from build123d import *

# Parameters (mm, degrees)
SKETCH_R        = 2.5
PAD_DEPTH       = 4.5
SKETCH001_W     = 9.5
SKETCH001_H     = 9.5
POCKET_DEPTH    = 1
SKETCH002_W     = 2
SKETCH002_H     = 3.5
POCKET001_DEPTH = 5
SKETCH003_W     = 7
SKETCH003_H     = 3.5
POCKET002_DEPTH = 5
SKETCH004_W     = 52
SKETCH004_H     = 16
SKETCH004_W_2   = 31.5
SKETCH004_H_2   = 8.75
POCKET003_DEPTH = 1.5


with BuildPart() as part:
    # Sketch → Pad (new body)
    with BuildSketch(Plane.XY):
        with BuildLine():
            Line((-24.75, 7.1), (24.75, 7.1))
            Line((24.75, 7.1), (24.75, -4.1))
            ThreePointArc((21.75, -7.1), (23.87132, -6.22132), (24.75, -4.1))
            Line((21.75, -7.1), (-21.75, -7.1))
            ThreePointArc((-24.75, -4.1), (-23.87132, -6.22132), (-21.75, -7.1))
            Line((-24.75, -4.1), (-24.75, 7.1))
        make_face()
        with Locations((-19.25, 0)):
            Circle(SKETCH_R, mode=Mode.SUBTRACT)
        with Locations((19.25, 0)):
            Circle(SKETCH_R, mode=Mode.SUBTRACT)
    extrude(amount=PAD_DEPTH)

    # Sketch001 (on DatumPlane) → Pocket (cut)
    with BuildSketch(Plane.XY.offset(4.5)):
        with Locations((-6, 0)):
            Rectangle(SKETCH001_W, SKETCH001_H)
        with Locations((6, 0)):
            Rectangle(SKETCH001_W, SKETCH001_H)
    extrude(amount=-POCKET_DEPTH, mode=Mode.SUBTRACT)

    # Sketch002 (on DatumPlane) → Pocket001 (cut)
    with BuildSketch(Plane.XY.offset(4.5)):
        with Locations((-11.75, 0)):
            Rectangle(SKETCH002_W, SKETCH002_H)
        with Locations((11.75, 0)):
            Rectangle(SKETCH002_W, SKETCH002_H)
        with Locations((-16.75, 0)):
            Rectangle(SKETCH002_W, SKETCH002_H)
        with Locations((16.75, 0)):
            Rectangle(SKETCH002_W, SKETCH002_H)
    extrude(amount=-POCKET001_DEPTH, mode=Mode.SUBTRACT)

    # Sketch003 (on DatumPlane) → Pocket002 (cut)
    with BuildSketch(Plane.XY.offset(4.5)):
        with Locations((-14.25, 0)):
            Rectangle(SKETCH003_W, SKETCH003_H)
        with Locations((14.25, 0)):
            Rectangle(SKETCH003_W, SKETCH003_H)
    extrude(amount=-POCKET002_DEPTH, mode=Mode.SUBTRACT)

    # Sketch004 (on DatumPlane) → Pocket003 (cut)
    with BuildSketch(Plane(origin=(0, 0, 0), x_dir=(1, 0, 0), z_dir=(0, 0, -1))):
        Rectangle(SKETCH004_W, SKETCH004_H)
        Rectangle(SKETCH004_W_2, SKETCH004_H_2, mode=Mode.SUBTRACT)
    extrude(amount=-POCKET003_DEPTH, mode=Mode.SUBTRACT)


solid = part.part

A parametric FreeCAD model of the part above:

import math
import FreeCAD as App
import Part
import Sketcher

V = App.Vector
Q = App.Units.Quantity

doc = App.newDocument("Part")
body = doc.addObject("PartDesign::Body", "Body")

# Sketch on XY plane
sketch1 = body.newObject("Sketcher::SketchObject", "Sketch")
sketch1.AttachmentSupport = (doc.getObject("XY_Plane"), [""])
sketch1.MapMode = "FlatFace"
sketch1.addGeometry([
    Part.LineSegment(V(24.8, 7.1, 0), V(-24.8, 7.1, 0)),  # 0
    Part.LineSegment(V(-24.8, 7.1, 0), V(-24.8, -4.1, 0)),  # 1
    Part.ArcOfCircle(Part.Circle(V(-21.7, -4.1, 0), V(0, 0, 1), 3), math.radians(-180), math.radians(-90)),  # 2
    Part.LineSegment(V(-21.8, -7.1, 0), V(21.8, -7.1, 0)),  # 3
    Part.ArcOfCircle(Part.Circle(V(21.7, -4.1, 0), V(0, 0, 1), 3), math.radians(-90), math.radians(0)),  # 4
    Part.LineSegment(V(24.8, -4.1, 0), V(24.8, 7.1, 0)),  # 5
    Part.Circle(V(19.2, 0, 0), V(0, 0, 1), 2.5),  # 6
    Part.Circle(V(-19.2, 0, 0), V(0, 0, 1), 2.5),  # 7
], False)
sketch1.addConstraint([
    Sketcher.Constraint("Coincident", 0, 2, 1, 1),
    Sketcher.Constraint("Tangent", 1, 2, 2, 1),
    Sketcher.Constraint("Tangent", 2, 2, 3, 1),
    Sketcher.Constraint("Tangent", 3, 2, 4, 1),
    Sketcher.Constraint("Tangent", 4, 2, 5, 1),
    Sketcher.Constraint("Coincident", 5, 2, 0, 1),
    Sketcher.Constraint("Horizontal", 0),
    Sketcher.Constraint("Vertical", 1),
    Sketcher.Constraint("Horizontal", 3),
    Sketcher.Constraint("Vertical", 5),
    Sketcher.Constraint("Equal", 2, 4),
    Sketcher.Constraint("Equal", 6, 7),
    Sketcher.Constraint("Symmetric", 6, 3, 7, 3, -1, 1),
    Sketcher.Constraint("PointOnObject", 6, 3, -1),
    Sketcher.Constraint("Diameter", 6, Q("5 mm")),
    Sketcher.Constraint("Radius", 2, Q("3.000001 mm")),
    Sketcher.Constraint("DistanceX", 0, 2, 0, 1, Q("49.5 mm")),
    Sketcher.Constraint("DistanceY", 1, 2, 1, 1, Q("11.2 mm")),
    Sketcher.Constraint("DistanceX", 2, 3, 6, 3, Q("40.999999 mm")),
    Sketcher.Constraint("DistanceX", 7, 3, 4, 3, Q("40.999999 mm")),
    Sketcher.Constraint("DistanceY", 2, 3, -1, 1, Q("4.099999 mm")),
])
pad1 = body.newObject("PartDesign::Pad", "Pad")
pad1.Profile = sketch1
pad1.Length = 4.5

# Sketch on XY plane
sketch2 = body.newObject("Sketcher::SketchObject", "Sketch001")
sketch2.AttachmentSupport = (doc.getObject("XY_Plane"), [""])
sketch2.MapMode = "FlatFace"
sketch2.AttachmentOffset = App.Placement(V(0, 0, 4.5), App.Rotation())
sketch2.addGeometry([
    Part.LineSegment(V(-11, 5, 0), V(-11, -5, 0)),  # 0
    Part.LineSegment(V(-11, -5, 0), V(-1, -5, 0)),  # 1
    Part.LineSegment(V(-1, -5, 0), V(-1, 5, 0)),  # 2
    Part.LineSegment(V(-1, 5, 0), V(-11, 5, 0)),  # 3
    Part.LineSegment(V(1, 5, 0), V(1, -5, 0)),  # 4
    Part.LineSegment(V(1, -5, 0), V(11, -5, 0)),  # 5
    Part.LineSegment(V(11, -5, 0), V(11, 5, 0)),  # 6
    Part.LineSegment(V(11, 5, 0), V(1, 5, 0)),  # 7
], False)
sketch2.addConstraint([
    Sketcher.Constraint("Coincident", 0, 2, 1, 1),
    Sketcher.Constraint("Coincident", 1, 2, 2, 1),
    Sketcher.Constraint("Coincident", 2, 2, 3, 1),
    Sketcher.Constraint("Coincident", 3, 2, 0, 1),
    Sketcher.Constraint("Coincident", 4, 2, 5, 1),
    Sketcher.Constraint("Coincident", 5, 2, 6, 1),
    Sketcher.Constraint("Coincident", 6, 2, 7, 1),
    Sketcher.Constraint("Coincident", 7, 2, 4, 1),
    Sketcher.Constraint("Vertical", 0),
    Sketcher.Constraint("Horizontal", 1),
    Sketcher.Constraint("Vertical", 2),
    Sketcher.Constraint("Horizontal", 3),
    Sketcher.Constraint("Vertical", 4),
    Sketcher.Constraint("Horizontal", 5),
    Sketcher.Constraint("Vertical", 6),
    Sketcher.Constraint("Horizontal", 7),
    Sketcher.Constraint("Symmetric", 2, 2, 4, 2, -1, 1),
    Sketcher.Constraint("Symmetric", 0, 2, 6, 2, -1, 1),
    Sketcher.Constraint("Horizontal", 1, 2, 4, 2),
    Sketcher.Constraint("Equal", 7, 0),
    Sketcher.Constraint("DistanceX", 1, 1, 1, 2, Q("9.5 mm")),
    Sketcher.Constraint("DistanceX", 0, 2, 4, 2, Q("12 mm")),
])
pocket1 = body.newObject("PartDesign::Pocket", "Pocket")
pocket1.Profile = sketch2
pocket1.Length = 1

# Sketch on XY plane
sketch3 = body.newObject("Sketcher::SketchObject", "Sketch002")
sketch3.AttachmentSupport = (doc.getObject("XY_Plane"), [""])
sketch3.MapMode = "FlatFace"
sketch3.AttachmentOffset = App.Placement(V(0, 0, 4.5), App.Rotation())
sketch3.addGeometry([
    Part.LineSegment(V(-12.8, 1.8, 0), V(-12.8, -1.8, 0)),  # 0
    Part.LineSegment(V(-12.8, -1.8, 0), V(-10.8, -1.8, 0)),  # 1
    Part.LineSegment(V(-10.8, -1.8, 0), V(-10.8, 1.8, 0)),  # 2
    Part.LineSegment(V(-10.8, 1.8, 0), V(-12.8, 1.8, 0)),  # 3
    Part.LineSegment(V(10.8, 1.8, 0), V(10.8, -1.8, 0)),  # 4
    Part.LineSegment(V(10.8, -1.8, 0), V(12.8, -1.8, 0)),  # 5
    Part.LineSegment(V(12.8, -1.8, 0), V(12.8, 1.8, 0)),  # 6
    Part.LineSegment(V(12.8, 1.8, 0), V(10.8, 1.8, 0)),  # 7
    Part.LineSegment(V(-17.8, 1.8, 0), V(-17.8, -1.8, 0)),  # 8
    Part.LineSegment(V(-17.8, -1.8, 0), V(-15.8, -1.8, 0)),  # 9
    Part.LineSegment(V(-15.8, -1.8, 0), V(-15.8, 1.8, 0)),  # 10
    Part.LineSegment(V(-15.8, 1.8, 0), V(-17.8, 1.8, 0)),  # 11
    Part.LineSegment(V(15.8, 1.8, 0), V(15.8, -1.8, 0)),  # 12
    Part.LineSegment(V(15.8, -1.8, 0), V(17.8, -1.8, 0)),  # 13
    Part.LineSegment(V(17.8, -1.8, 0), V(17.8, 1.8, 0)),  # 14
    Part.LineSegment(V(17.8, 1.8, 0), V(15.8, 1.8, 0)),  # 15
], False)
sketch3.addConstraint([
    Sketcher.Constraint("Coincident", 0, 2, 1, 1),
    Sketcher.Constraint("Coincident", 1, 2, 2, 1),
    Sketcher.Constraint("Coincident", 2, 2, 3, 1),
    Sketcher.Constraint("Coincident", 3, 2, 0, 1),
    Sketcher.Constraint("Coincident", 4, 2, 5, 1),
    Sketcher.Constraint("Coincident", 5, 2, 6, 1),
    Sketcher.Constraint("Coincident", 6, 2, 7, 1),
    Sketcher.Constraint("Coincident", 7, 2, 4, 1),
    Sketcher.Constraint("Coincident", 8, 2, 9, 1),
    Sketcher.Constraint("Coincident", 9, 2, 10, 1),
    Sketcher.Constraint("Coincident", 10, 2, 11, 1),
    Sketcher.Constraint("Coincident", 11, 2, 8, 1),
    Sketcher.Constraint("Coincident", 12, 2, 13, 1),
    Sketcher.Constraint("Coincident", 13, 2, 14, 1),
    Sketcher.Constraint("Coincident", 14, 2, 15, 1),
    Sketcher.Constraint("Coincident", 15, 2, 12, 1),
    Sketcher.Constraint("Vertical", 0),
    Sketcher.Constraint("Horizontal", 1),
    Sketcher.Constraint("Vertical", 2),
    Sketcher.Constraint("Horizontal", 3),
    Sketcher.Constraint("Vertical", 4),
    Sketcher.Constraint("Horizontal", 5),
    Sketcher.Constraint("Vertical", 6),
    Sketcher.Constraint("Horizontal", 7),
    Sketcher.Constraint("Vertical", 8),
    Sketcher.Constraint("Horizontal", 9),
    Sketcher.Constraint("Vertical", 10),
    Sketcher.Constraint("Horizontal", 11),
    Sketcher.Constraint("Vertical", 12),
    Sketcher.Constraint("Horizontal", 13),
    Sketcher.Constraint("Vertical", 14),
    Sketcher.Constraint("Horizontal", 15),
    Sketcher.Constraint("Symmetric", 2, 2, 4, 2, -1, 1),
    Sketcher.Constraint("Symmetric", 0, 2, 6, 2, -1, 1),
    Sketcher.Constraint("Symmetric", 10, 2, 12, 2, -1, 1),
    Sketcher.Constraint("Symmetric", 8, 2, 14, 2, -1, 1),
    Sketcher.Constraint("Horizontal", 1, 2, 4, 2),
    Sketcher.Constraint("Horizontal", 5, 2, 8, 2),
    Sketcher.Constraint("Horizontal", 7, 2, 10, 2),
    Sketcher.Constraint("Equal", 7, 9),
    Sketcher.Constraint("DistanceX", 1, 1, 1, 2, Q("2 mm")),
    Sketcher.Constraint("DistanceY", 0, 2, 0, 1, Q("3.5 mm")),
    Sketcher.Constraint("DistanceX", 8, 2, 0, 2, Q("5 mm")),
    Sketcher.Constraint("DistanceX", 1, 2, 4, 2, Q("21.5 mm")),
])
pocket2 = body.newObject("PartDesign::Pocket", "Pocket001")
pocket2.Profile = sketch3
pocket2.Length = 5

# Sketch on XY plane
sketch4 = body.newObject("Sketcher::SketchObject", "Sketch003")
sketch4.AttachmentSupport = (doc.getObject("XY_Plane"), [""])
sketch4.MapMode = "FlatFace"
sketch4.AttachmentOffset = App.Placement(V(0, 0, 4.5), App.Rotation())
sketch4.addGeometry([
    Part.LineSegment(V(-17.8, 1.8, 0), V(-17.8, -1.8, 0)),  # 0
    Part.LineSegment(V(-17.8, -1.8, 0), V(-10.8, -1.8, 0)),  # 1
    Part.LineSegment(V(-10.8, -1.8, 0), V(-10.8, 1.8, 0)),  # 2
    Part.LineSegment(V(-10.8, 1.8, 0), V(-17.8, 1.8, 0)),  # 3
    Part.LineSegment(V(10.8, 1.8, 0), V(10.8, -1.8, 0)),  # 4
    Part.LineSegment(V(10.8, -1.8, 0), V(17.8, -1.8, 0)),  # 5
    Part.LineSegment(V(17.8, -1.8, 0), V(17.8, 1.8, 0)),  # 6
    Part.LineSegment(V(17.8, 1.8, 0), V(10.8, 1.8, 0)),  # 7
], False)
sketch4.addConstraint([
    Sketcher.Constraint("Coincident", 0, 2, 1, 1),
    Sketcher.Constraint("Coincident", 1, 2, 2, 1),
    Sketcher.Constraint("Coincident", 2, 2, 3, 1),
    Sketcher.Constraint("Coincident", 3, 2, 0, 1),
    Sketcher.Constraint("Coincident", 4, 2, 5, 1),
    Sketcher.Constraint("Coincident", 5, 2, 6, 1),
    Sketcher.Constraint("Coincident", 6, 2, 7, 1),
    Sketcher.Constraint("Coincident", 7, 2, 4, 1),
    Sketcher.Constraint("Vertical", 0),
    Sketcher.Constraint("Horizontal", 1),
    Sketcher.Constraint("Vertical", 2),
    Sketcher.Constraint("Horizontal", 3),
    Sketcher.Constraint("Vertical", 4),
    Sketcher.Constraint("Horizontal", 5),
    Sketcher.Constraint("Vertical", 6),
    Sketcher.Constraint("Horizontal", 7),
    Sketcher.Constraint("Symmetric", 2, 2, 4, 2, -1, 1),
    Sketcher.Constraint("Symmetric", 0, 2, 6, 2, -1, 1),
    Sketcher.Constraint("Horizontal", 1, 2, 4, 2),
    Sketcher.Constraint("DistanceX", 1, 1, 1, 2, Q("7 mm")),
    Sketcher.Constraint("DistanceY", 0, 2, 0, 1, Q("3.5 mm")),
    Sketcher.Constraint("DistanceX", 1, 2, 4, 2, Q("21.5 mm")),
])
pocket3 = body.newObject("PartDesign::Pocket", "Pocket002")
pocket3.Profile = sketch4
pocket3.Length = 5

# Sketch on XY plane
sketch5 = body.newObject("Sketcher::SketchObject", "Sketch004")
sketch5.AttachmentSupport = (doc.getObject("XY_Plane"), [""])
sketch5.MapMode = "FlatFace"
sketch5.addGeometry([
    Part.LineSegment(V(-26, -8, 0), V(-26, 8, 0)),  # 0
    Part.LineSegment(V(-26, 8, 0), V(26, 8, 0)),  # 1
    Part.LineSegment(V(26, 8, 0), V(26, -8, 0)),  # 2
    Part.LineSegment(V(26, -8, 0), V(-26, -8, 0)),  # 3
    Part.LineSegment(V(16, 4, 0), V(-16, 4, 0)),  # 4
    Part.LineSegment(V(-16, 4, 0), V(-16, -4, 0)),  # 5
    Part.LineSegment(V(-16, -4, 0), V(16, -4, 0)),  # 6
    Part.LineSegment(V(16, -4, 0), V(16, 4, 0)),  # 7
], False)
sketch5.addConstraint([
    Sketcher.Constraint("Coincident", 0, 2, 1, 1),
    Sketcher.Constraint("Coincident", 1, 2, 2, 1),
    Sketcher.Constraint("Coincident", 2, 2, 3, 1),
    Sketcher.Constraint("Coincident", 3, 2, 0, 1),
    Sketcher.Constraint("Coincident", 4, 2, 5, 1),
    Sketcher.Constraint("Coincident", 5, 2, 6, 1),
    Sketcher.Constraint("Coincident", 6, 2, 7, 1),
    Sketcher.Constraint("Coincident", 7, 2, 4, 1),
    Sketcher.Constraint("Vertical", 0),
    Sketcher.Constraint("Horizontal", 1),
    Sketcher.Constraint("Vertical", 2),
    Sketcher.Constraint("Horizontal", 3),
    Sketcher.Constraint("Horizontal", 4),
    Sketcher.Constraint("Vertical", 5),
    Sketcher.Constraint("Horizontal", 6),
    Sketcher.Constraint("Vertical", 7),
    Sketcher.Constraint("Symmetric", 0, 2, 2, 2, -1, 1),
    Sketcher.Constraint("Symmetric", 4, 2, 6, 2, -1, 1),
    Sketcher.Constraint("DistanceX", 1, 1, 1, 2, Q("52 mm")),
    Sketcher.Constraint("DistanceY", 0, 1, 0, 2, Q("16 mm")),
    Sketcher.Constraint("DistanceX", 4, 2, 4, 1, Q("31.5 mm")),
    Sketcher.Constraint("DistanceY", 5, 2, 5, 1, Q("8.75 mm")),
])
pocket4 = body.newObject("PartDesign::Pocket", "Pocket003")
pocket4.Profile = sketch5
pocket4.Length = 1.5
pocket4.Reversed = True

doc.recompute()
